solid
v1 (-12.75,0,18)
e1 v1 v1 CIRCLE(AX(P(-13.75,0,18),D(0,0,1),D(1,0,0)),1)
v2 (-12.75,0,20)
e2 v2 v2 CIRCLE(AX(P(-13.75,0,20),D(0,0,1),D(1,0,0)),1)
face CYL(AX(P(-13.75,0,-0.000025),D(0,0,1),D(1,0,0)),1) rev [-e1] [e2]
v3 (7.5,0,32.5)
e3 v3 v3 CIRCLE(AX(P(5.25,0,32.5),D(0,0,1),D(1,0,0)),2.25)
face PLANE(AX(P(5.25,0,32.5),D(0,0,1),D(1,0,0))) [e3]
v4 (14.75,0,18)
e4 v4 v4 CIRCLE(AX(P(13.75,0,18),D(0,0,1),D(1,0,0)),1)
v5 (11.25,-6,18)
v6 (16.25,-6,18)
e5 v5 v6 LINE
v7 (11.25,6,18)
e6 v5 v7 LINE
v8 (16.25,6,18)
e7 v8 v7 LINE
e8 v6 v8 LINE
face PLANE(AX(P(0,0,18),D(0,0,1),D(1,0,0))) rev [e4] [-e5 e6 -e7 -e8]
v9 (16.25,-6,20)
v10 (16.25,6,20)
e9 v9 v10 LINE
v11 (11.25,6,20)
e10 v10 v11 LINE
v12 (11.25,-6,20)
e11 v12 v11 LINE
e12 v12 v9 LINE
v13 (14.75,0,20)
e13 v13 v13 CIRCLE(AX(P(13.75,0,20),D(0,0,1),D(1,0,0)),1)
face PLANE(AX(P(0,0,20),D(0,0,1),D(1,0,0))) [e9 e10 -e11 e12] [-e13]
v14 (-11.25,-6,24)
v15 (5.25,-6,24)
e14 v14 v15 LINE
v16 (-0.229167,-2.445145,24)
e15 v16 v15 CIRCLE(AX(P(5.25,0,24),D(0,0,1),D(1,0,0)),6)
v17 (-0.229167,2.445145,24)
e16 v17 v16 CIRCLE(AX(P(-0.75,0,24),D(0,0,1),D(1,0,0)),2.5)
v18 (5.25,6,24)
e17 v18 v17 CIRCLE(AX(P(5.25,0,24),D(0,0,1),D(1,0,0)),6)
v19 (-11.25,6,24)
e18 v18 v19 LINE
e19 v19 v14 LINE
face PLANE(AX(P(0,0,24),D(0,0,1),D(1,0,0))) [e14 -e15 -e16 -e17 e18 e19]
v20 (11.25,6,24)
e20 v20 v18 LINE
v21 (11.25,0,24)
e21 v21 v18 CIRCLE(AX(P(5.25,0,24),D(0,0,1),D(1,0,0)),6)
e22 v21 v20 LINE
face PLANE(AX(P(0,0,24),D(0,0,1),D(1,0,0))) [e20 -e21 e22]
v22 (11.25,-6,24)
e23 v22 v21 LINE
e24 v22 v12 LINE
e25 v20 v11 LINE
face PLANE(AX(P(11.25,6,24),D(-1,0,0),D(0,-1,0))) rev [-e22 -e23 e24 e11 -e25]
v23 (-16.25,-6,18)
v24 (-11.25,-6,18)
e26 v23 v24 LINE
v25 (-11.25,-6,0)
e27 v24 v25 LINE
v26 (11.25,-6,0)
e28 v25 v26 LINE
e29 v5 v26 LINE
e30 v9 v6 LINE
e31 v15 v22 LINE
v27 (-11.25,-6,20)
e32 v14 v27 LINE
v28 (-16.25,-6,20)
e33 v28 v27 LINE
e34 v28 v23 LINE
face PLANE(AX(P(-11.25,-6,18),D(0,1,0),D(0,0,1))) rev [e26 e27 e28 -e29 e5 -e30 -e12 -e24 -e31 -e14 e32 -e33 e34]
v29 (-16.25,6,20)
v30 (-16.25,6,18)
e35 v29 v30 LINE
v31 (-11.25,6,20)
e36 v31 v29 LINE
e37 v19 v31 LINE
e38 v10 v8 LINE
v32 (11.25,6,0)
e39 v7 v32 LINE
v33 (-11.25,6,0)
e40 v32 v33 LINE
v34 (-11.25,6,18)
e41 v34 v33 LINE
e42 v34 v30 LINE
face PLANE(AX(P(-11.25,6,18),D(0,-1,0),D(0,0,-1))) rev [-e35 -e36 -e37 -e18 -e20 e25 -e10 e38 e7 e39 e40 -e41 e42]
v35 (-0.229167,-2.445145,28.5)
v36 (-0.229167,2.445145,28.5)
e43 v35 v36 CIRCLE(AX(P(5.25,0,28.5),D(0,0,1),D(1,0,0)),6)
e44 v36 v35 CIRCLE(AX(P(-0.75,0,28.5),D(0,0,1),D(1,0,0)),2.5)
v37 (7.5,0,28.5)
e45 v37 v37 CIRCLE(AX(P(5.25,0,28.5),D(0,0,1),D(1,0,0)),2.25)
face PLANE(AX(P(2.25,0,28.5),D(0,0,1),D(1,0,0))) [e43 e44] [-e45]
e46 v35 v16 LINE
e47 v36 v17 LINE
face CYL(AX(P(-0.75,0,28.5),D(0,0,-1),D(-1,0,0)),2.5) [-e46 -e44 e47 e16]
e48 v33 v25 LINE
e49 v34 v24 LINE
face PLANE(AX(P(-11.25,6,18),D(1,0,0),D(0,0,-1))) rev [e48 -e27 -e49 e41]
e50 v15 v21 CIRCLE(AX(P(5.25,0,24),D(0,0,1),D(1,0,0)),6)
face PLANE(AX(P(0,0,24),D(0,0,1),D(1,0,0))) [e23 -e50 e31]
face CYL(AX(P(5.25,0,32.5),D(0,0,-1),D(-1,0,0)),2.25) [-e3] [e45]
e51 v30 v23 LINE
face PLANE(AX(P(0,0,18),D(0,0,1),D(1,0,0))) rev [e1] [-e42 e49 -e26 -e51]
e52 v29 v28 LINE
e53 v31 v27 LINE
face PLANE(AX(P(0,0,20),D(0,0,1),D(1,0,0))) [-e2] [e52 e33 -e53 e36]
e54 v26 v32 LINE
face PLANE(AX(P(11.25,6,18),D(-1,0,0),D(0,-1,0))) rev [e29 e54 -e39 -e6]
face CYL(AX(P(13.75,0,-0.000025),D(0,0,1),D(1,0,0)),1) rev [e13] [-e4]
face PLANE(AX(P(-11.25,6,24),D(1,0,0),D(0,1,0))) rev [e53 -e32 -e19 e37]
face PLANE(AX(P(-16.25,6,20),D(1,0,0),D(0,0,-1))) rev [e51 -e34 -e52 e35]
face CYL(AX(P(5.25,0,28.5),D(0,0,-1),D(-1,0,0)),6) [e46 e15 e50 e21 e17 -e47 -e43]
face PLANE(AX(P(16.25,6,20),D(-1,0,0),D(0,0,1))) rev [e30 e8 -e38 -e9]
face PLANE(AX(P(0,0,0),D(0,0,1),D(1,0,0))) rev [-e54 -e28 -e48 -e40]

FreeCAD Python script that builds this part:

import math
import FreeCAD as App
import Part
import Sketcher
from FreeCAD import Vector

doc = App.newDocument("Part")
body = doc.addObject("PartDesign::Body", "Body")

# Sketch on XY plane
sketch1 = body.newObject("Sketcher::SketchObject", "Sketch")
sketch1.AttachmentSupport = (doc.getObject("XY_Plane"), [""])
sketch1.MapMode = "FlatFace"
sketch1.addGeometry(Part.LineSegment(Vector(-11.25, 6, 0), Vector(-11.25, -6, 0)), False)
sketch1.addGeometry(Part.LineSegment(Vector(-11.25, -6, 0), Vector(11.25, -6, 0)), False)
sketch1.addGeometry(Part.LineSegment(Vector(11.25, -6, 0), Vector(11.25, 6, 0)), False)
sketch1.addGeometry(Part.LineSegment(Vector(11.25, 6, 0), Vector(-11.25, 6, 0)), False)
sketch1.addConstraint(Sketcher.Constraint("Coincident", 0, 2, 1, 1))
sketch1.addConstraint(Sketcher.Constraint("Coincident", 1, 2, 2, 1))
sketch1.addConstraint(Sketcher.Constraint("Coincident", 2, 2, 3, 1))
sketch1.addConstraint(Sketcher.Constraint("Coincident", 3, 2, 0, 1))
sketch1.addConstraint(Sketcher.Constraint("Vertical", 0))
sketch1.addConstraint(Sketcher.Constraint("Horizontal", 1))
sketch1.addConstraint(Sketcher.Constraint("Vertical", 2))
sketch1.addConstraint(Sketcher.Constraint("Horizontal", 3))
sketch1.addConstraint(Sketcher.Constraint("Symmetric", 0, 2, 2, 2, -1, 1))
sketch1.addConstraint(Sketcher.Constraint("DistanceY", 0, 2, 0, 1, 12.0))
sketch1.addConstraint(Sketcher.Constraint("DistanceX", 1, 1, 1, 2, 22.5))
pad1 = body.newObject("PartDesign::Pad", "Pad")
pad1.Profile = sketch1
pad1.Length = 18

# Sketch on XY plane
sketch2 = body.newObject("Sketcher::SketchObject", "Sketch001")
sketch2.AttachmentSupport = (doc.getObject("XY_Plane"), [""])
sketch2.MapMode = "FlatFace"
sketch2.AttachmentOffset = App.Placement(Vector(0, 0, 18), App.Rotation())
sketch2.addGeometry(Part.LineSegment(Vector(-16.25, 6, 0), Vector(-16.25, -6, 0)), False)
sketch2.addGeometry(Part.LineSegment(Vector(-16.25, -6, 0), Vector(16.25, -6, 0)), False)
sketch2.addGeometry(Part.LineSegment(Vector(16.25, -6, 0), Vector(16.25, 6, 0)), False)
sketch2.addGeometry(Part.LineSegment(Vector(16.25, 6, 0), Vector(-16.25, 6, 0)), False)
sketch2.addConstraint(Sketcher.Constraint("Coincident", 0, 2, 1, 1))
sketch2.addConstraint(Sketcher.Constraint("Coincident", 1, 2, 2, 1))
sketch2.addConstraint(Sketcher.Constraint("Coincident", 2, 2, 3, 1))
sketch2.addConstraint(Sketcher.Constraint("Coincident", 3, 2, 0, 1))
sketch2.addConstraint(Sketcher.Constraint("Vertical", 0))
sketch2.addConstraint(Sketcher.Constraint("Horizontal", 1))
sketch2.addConstraint(Sketcher.Constraint("Vertical", 2))
sketch2.addConstraint(Sketcher.Constraint("Horizontal", 3))
sketch2.addConstraint(Sketcher.Constraint("Symmetric", 0, 2, 2, 2, -1, 1))
sketch2.addConstraint(Sketcher.Constraint("DistanceY", 0, 2, 0, 1, 12.0))
sketch2.addConstraint(Sketcher.Constraint("DistanceX", 1, 1, 1, 2, 32.5))
pad2 = body.newObject("PartDesign::Pad", "Pad001")
pad2.Profile = sketch2
pad2.Length = 2

# Sketch on XY plane
sketch3 = body.newObject("Sketcher::SketchObject", "Sketch002")
sketch3.AttachmentSupport = (doc.getObject("XY_Plane"), [""])
sketch3.MapMode = "FlatFace"
sketch3.AttachmentOffset = App.Placement(Vector(0, 0, 20), App.Rotation())
sketch3.addGeometry(Part.LineSegment(Vector(-11.25, 6, 0), Vector(-11.25, -6, 0)), False)
sketch3.addGeometry(Part.LineSegment(Vector(-11.25, -6, 0), Vector(11.25, -6, 0)), False)
sketch3.addGeometry(Part.LineSegment(Vector(11.25, -6, 0), Vector(11.25, 6, 0)), False)
sketch3.addGeometry(Part.LineSegment(Vector(11.25, 6, 0), Vector(-11.25, 6, 0)), False)
sketch3.addConstraint(Sketcher.Constraint("Coincident", 0, 2, 1, 1))
sketch3.addConstraint(Sketcher.Constraint("Coincident", 1, 2, 2, 1))
sketch3.addConstraint(Sketcher.Constraint("Coincident", 2, 2, 3, 1))
sketch3.addConstraint(Sketcher.Constraint("Coincident", 3, 2, 0, 1))
sketch3.addConstraint(Sketcher.Constraint("Vertical", 0))
sketch3.addConstraint(Sketcher.Constraint("Horizontal", 1))
sketch3.addConstraint(Sketcher.Constraint("Vertical", 2))
sketch3.addConstraint(Sketcher.Constraint("Horizontal", 3))
sketch3.addConstraint(Sketcher.Constraint("Symmetric", 0, 2, 2, 2, -1, 1))
sketch3.addConstraint(Sketcher.Constraint("DistanceY", 0, 2, 0, 1, 12.0))
sketch3.addConstraint(Sketcher.Constraint("DistanceX", 1, 1, 1, 2, 22.5))
pad3 = body.newObject("PartDesign::Pad", "Pad002")
pad3.Profile = sketch3
pad3.Length = 4

# Sketch on XY plane
sketch4 = body.newObject("Sketcher::SketchObject", "Sketch003")
sketch4.AttachmentSupport = (doc.getObject("XY_Plane"), [""])
sketch4.MapMode = "FlatFace"
sketch4.AttachmentOffset = App.Placement(Vector(0, 0, 20), App.Rotation())
sketch4.addGeometry(Part.Circle(Vector(-13.75, 0, 0), Vector(0, 0, 1), 1), False)
sketch4.addGeometry(Part.Circle(Vector(13.75, 0, 0), Vector(0, 0, 1), 1), False)
sketch4.addConstraint(Sketcher.Constraint("Equal", 0, 1))
sketch4.addConstraint(Sketcher.Constraint("Symmetric", 0, 3, 1, 3, -1, 1))
sketch4.addConstraint(Sketcher.Constraint("PointOnObject", 0, 3, -1))
sketch4.addConstraint(Sketcher.Constraint("Diameter", 0, 2.0))
sketch4.addConstraint(Sketcher.Constraint("DistanceX", 0, 3, 1, 3, 27.5))
pocket1 = body.newObject("PartDesign::Pocket", "Pocket")
pocket1.Profile = sketch4
pocket1.Type = "ThroughAll"

# Sketch on XY plane
sketch5 = body.newObject("Sketcher::SketchObject", "Sketch004")
sketch5.AttachmentSupport = (doc.getObject("XY_Plane"), [""])
sketch5.MapMode = "FlatFace"
sketch5.AttachmentOffset = App.Placement(Vector(0, 0, 24), App.Rotation())
sketch5.addGeometry(Part.ArcOfCircle(Part.Circle(Vector(5.25, 0, 0), Vector(0, 0, 1), 6), math.radians(-155.950602), math.radians(155.950602)), False)
sketch5.addGeometry(Part.ArcOfCircle(Part.Circle(Vector(-0.75, 0, 0), Vector(0, 0, 1), 2.5), math.radians(77.975301), math.radians(282.024699)), False)
sketch5.addConstraint(Sketcher.Constraint("Coincident", 0, 1, 1, 2))
sketch5.addConstraint(Sketcher.Constraint("Coincident", 1, 1, 0, 2))
sketch5.addConstraint(Sketcher.Constraint("Symmetric", 0, 1, 1, 1, -1))
sketch5.addConstraint(Sketcher.Constraint("Radius", 0, 6.0))
sketch5.addConstraint(Sketcher.Constraint("Radius", 1, 2.5))
sketch5.addConstraint(Sketcher.Constraint("DistanceX", 1, 3, 0, 3, 6.0))
sketch5.addConstraint(Sketcher.Constraint("DistanceX", -1, 1, 0, 3, 5.25))
pad4 = body.newObject("PartDesign::Pad", "Pad003")
pad4.Profile = sketch5
pad4.Length = 4.5

# Sketch on XY plane
sketch6 = body.newObject("Sketcher::SketchObject", "Sketch005")
sketch6.AttachmentSupport = (doc.getObject("XY_Plane"), [""])
sketch6.MapMode = "FlatFace"
sketch6.AttachmentOffset = App.Placement(Vector(0, 0, 28.5), App.Rotation())
sketch6.addGeometry(Part.Circle(Vector(5.25, 0, 0), Vector(0, 0, 1), 2.25), False)
sketch6.addConstraint(Sketcher.Constraint("PointOnObject", 0, 3, -1))
sketch6.addConstraint(Sketcher.Constraint("Diameter", 0, 4.5))
sketch6.addConstraint(Sketcher.Constraint("DistanceX", -1, 1, 0, 3, 5.25))
pad5 = body.newObject("PartDesign::Pad", "Pad004")
pad5.Profile = sketch6
pad5.Length = 4

doc.recompute()
